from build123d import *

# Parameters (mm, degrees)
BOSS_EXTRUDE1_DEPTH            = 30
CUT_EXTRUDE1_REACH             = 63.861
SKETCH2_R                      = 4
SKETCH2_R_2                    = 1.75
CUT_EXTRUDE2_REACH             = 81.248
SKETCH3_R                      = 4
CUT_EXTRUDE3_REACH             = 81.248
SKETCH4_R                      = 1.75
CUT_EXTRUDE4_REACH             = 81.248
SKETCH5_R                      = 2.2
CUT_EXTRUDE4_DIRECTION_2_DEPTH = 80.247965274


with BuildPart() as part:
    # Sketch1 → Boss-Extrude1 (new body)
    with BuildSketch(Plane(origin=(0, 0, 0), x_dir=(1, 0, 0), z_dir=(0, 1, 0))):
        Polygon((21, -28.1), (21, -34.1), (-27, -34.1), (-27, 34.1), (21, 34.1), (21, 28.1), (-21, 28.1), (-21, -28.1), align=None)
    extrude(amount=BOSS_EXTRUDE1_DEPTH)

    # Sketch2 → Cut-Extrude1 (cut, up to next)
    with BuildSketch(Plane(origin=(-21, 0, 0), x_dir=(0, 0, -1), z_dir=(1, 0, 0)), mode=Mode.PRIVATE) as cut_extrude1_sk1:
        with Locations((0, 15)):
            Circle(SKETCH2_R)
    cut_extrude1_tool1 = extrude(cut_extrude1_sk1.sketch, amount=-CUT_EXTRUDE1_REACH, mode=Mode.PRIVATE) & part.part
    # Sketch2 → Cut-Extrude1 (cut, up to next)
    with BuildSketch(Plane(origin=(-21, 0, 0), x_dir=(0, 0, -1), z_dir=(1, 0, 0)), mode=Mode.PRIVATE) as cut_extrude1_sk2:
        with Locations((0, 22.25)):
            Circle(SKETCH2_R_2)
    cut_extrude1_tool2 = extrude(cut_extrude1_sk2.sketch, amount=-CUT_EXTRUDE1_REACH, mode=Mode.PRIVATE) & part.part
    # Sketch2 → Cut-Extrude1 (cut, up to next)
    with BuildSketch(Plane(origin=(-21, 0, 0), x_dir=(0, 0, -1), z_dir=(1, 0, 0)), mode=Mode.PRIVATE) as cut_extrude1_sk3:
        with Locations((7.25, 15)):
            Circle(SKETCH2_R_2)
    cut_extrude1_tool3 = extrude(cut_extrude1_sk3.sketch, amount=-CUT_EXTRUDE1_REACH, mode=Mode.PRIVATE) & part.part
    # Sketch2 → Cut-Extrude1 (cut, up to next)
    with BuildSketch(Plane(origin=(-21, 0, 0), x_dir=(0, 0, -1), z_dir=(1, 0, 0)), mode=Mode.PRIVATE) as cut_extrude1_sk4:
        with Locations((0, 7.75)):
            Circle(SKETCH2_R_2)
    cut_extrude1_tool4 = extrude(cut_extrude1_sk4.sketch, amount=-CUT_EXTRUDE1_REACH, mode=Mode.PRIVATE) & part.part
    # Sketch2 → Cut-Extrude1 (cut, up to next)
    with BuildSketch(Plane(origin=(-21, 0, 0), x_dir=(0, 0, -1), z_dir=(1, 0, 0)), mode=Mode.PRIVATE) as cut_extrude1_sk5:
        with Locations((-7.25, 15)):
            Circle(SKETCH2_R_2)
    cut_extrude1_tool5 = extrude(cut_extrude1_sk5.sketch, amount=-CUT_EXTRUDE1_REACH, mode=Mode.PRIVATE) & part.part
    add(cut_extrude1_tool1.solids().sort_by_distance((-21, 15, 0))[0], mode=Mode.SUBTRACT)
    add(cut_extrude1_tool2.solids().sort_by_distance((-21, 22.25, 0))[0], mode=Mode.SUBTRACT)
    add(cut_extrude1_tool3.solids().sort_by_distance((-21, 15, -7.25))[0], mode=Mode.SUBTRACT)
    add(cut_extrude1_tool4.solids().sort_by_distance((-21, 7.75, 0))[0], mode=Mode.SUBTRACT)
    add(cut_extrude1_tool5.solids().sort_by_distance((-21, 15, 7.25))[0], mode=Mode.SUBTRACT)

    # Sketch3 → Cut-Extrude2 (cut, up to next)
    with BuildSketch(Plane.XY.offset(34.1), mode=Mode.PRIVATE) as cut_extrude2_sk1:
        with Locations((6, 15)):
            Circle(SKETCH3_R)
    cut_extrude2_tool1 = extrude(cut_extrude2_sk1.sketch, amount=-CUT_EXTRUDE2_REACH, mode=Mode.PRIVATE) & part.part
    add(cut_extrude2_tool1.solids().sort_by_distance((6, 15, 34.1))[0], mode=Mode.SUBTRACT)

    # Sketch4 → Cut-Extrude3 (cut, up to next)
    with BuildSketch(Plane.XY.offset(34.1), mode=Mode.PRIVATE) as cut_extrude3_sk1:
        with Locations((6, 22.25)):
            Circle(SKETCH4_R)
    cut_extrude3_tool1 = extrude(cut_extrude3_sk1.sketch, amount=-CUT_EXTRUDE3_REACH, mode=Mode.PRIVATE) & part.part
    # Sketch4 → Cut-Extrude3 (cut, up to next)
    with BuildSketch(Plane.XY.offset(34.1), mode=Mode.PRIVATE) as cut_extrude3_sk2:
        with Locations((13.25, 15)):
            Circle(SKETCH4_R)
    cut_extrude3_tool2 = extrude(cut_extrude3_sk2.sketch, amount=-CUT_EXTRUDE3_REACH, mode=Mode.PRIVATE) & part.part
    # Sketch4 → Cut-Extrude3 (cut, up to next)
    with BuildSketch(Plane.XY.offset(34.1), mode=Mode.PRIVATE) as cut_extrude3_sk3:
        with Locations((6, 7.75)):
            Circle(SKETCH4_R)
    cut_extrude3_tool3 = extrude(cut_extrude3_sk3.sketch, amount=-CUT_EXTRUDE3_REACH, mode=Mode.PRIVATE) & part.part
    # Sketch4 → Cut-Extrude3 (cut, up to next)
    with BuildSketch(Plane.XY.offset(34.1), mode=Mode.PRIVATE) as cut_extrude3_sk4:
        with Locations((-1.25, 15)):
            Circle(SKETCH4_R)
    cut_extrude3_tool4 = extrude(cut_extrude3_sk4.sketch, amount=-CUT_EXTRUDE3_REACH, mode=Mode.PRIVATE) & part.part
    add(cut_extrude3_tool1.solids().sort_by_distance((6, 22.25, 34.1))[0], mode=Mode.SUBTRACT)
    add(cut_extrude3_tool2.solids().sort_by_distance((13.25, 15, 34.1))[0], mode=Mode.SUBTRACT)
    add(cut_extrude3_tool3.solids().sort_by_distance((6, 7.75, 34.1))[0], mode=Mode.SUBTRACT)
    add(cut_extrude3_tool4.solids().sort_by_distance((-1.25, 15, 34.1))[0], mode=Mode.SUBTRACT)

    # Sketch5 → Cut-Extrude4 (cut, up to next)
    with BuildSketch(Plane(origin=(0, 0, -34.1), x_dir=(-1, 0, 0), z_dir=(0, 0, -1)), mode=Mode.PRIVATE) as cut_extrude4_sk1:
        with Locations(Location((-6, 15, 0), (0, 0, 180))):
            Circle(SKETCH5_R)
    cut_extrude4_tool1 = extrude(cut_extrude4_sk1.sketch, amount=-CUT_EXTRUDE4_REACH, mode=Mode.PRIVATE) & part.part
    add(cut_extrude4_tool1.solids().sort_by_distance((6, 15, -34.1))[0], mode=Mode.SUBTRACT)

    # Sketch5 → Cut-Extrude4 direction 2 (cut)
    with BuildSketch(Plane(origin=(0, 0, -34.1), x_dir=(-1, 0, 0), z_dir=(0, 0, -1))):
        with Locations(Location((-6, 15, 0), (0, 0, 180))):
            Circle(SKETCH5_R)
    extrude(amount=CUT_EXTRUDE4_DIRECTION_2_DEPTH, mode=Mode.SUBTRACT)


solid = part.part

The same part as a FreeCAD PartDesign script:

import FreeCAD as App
import Part
import Sketcher

doc = App.newDocument("Part")
body = doc.addObject("PartDesign::Body", "Body")

sketch1 = body.newObject("Sketcher::SketchObject", "Sketch")
sketch1.AttachmentSupport = (doc.getObject("XZ_Plane"), [""])
sketch1.MapMode = "FlatFace"
sketch1.addGeometry([
    Part.LineSegment(App.Vector(21, 34.1, 0), App.Vector(21, 28.1, 0)),
    Part.LineSegment(App.Vector(21, 28.1, 0), App.Vector(-21, 28.1, 0)),
    Part.LineSegment(App.Vector(-21, 28.1, 0), App.Vector(-21, -28.1, 0)),
    Part.LineSegment(App.Vector(-21, -28.1, 0), App.Vector(21, -28.1, 0)),
    Part.LineSegment(App.Vector(21, -28.1, 0), App.Vector(21, -34.1, 0)),
    Part.LineSegment(App.Vector(21, -34.1, 0), App.Vector(-27, -34.1, 0)),
    Part.LineSegment(App.Vector(-27, -34.1, 0), App.Vector(-27, 34.1, 0)),
    Part.LineSegment(App.Vector(-27, 34.1, 0), App.Vector(21, 34.1, 0)),
], False)
sketch1.addConstraint([
    Sketcher.Constraint("Coincident", 0, 2, 1, 1),
    Sketcher.Constraint("Coincident", 1, 2, 2, 1),
    Sketcher.Constraint("Coincident", 2, 2, 3, 1),
    Sketcher.Constraint("Coincident", 3, 2, 4, 1),
    Sketcher.Constraint("Coincident", 4, 2, 5, 1),
    Sketcher.Constraint("Coincident", 5, 2, 6, 1),
    Sketcher.Constraint("Coincident", 6, 2, 7, 1),
    Sketcher.Constraint("Coincident", 7, 2, 0, 1),
    Sketcher.Constraint("Vertical", 0),
    Sketcher.Constraint("Horizontal", 1),
    Sketcher.Constraint("Vertical", 2),
    Sketcher.Constraint("Horizontal", 3),
    Sketcher.Constraint("Vertical", 4),
    Sketcher.Constraint("Horizontal", 5),
    Sketcher.Constraint("Vertical", 6),
    Sketcher.Constraint("Horizontal", 7),
    Sketcher.Constraint("Symmetric", 0, 2, 2, 2, -1, 1),
    Sketcher.Constraint("Symmetric", 4, 2, 7, 2, -1),
    Sketcher.Constraint("DistanceX", 1, 2, 1, 1, 42.0),
    Sketcher.Constraint("DistanceX", 5, 2, 5, 1, 48.0),
    Sketcher.Constraint("DistanceY", 0, 2, 0, 1, 6.0),
    Sketcher.Constraint("DistanceY", 2, 2, 2, 1, 56.2),
])
pad1 = body.newObject("PartDesign::Pad", "Pad")
pad1.Profile = sketch1
pad1.Length = 30
pad1.Reversed = True

sketch2 = body.newObject("Sketcher::SketchObject", "Sketch001")
sketch2.AttachmentSupport = (doc.getObject("YZ_Plane"), [""])
sketch2.MapMode = "FlatFace"
sketch2.AttachmentOffset = App.Placement(App.Vector(0, 0, -21), App.Rotation())
sketch2.addGeometry(Part.Circle(App.Vector(15, 0, 0), App.Vector(0, 0, 1), 4), False)
sketch2.addConstraint([
    Sketcher.Constraint("PointOnObject", 0, 3, -1),
    Sketcher.Constraint("Diameter", 0, 8.0),
    Sketcher.Constraint("DistanceX", -1, 1, 0, 3, 15.0),
])
pocket1 = body.newObject("PartDesign::Pocket", "Pocket")
pocket1.Profile = sketch2
pocket1.Type = "UpToFirst"

sketch3 = body.newObject("Sketcher::SketchObject", "Sketch002")
sketch3.AttachmentSupport = (doc.getObject("YZ_Plane"), [""])
sketch3.MapMode = "FlatFace"
sketch3.AttachmentOffset = App.Placement(App.Vector(0, 0, -21), App.Rotation())
sketch3.addGeometry(Part.Circle(App.Vector(22.25, 0, 0), App.Vector(0, 0, 1), 1.75), False)
sketch3.addConstraint([
    Sketcher.Constraint("PointOnObject", 0, 3, -1),
    Sketcher.Constraint("Diameter", 0, 3.5),
    Sketcher.Constraint("DistanceX", -1, 1, 0, 3, 22.25),
])
pocket2 = body.newObject("PartDesign::Pocket", "Pocket001")
pocket2.Profile = sketch3
pocket2.Type = "UpToFirst"

sketch4 = body.newObject("Sketcher::SketchObject", "Sketch003")
sketch4.AttachmentSupport = (doc.getObject("YZ_Plane"), [""])
sketch4.MapMode = "FlatFace"
sketch4.AttachmentOffset = App.Placement(App.Vector(0, 0, -21), App.Rotation())
sketch4.addGeometry(Part.Circle(App.Vector(15, -7.25, 0), App.Vector(0, 0, 1), 1.75), False)
sketch4.addConstraint([
    Sketcher.Constraint("Diameter", 0, 3.5),
    Sketcher.Constraint("DistanceX", -1, 1, 0, 3, 15.0),
    Sketcher.Constraint("DistanceY", 0, 3, -1, 1, 7.25),
])
pocket3 = body.newObject("PartDesign::Pocket", "Pocket002")
pocket3.Profile = sketch4
pocket3.Type = "UpToFirst"

sketch5 = body.newObject("Sketcher::SketchObject", "Sketch004")
sketch5.AttachmentSupport = (doc.getObject("YZ_Plane"), [""])
sketch5.MapMode = "FlatFace"
sketch5.AttachmentOffset = App.Placement(App.Vector(0, 0, -21), App.Rotation())
sketch5.addGeometry(Part.Circle(App.Vector(7.75, 0, 0), App.Vector(0, 0, 1), 1.75), False)
sketch5.addConstraint([
    Sketcher.Constraint("PointOnObject", 0, 3, -1),
    Sketcher.Constraint("Diameter", 0, 3.5),
    Sketcher.Constraint("DistanceX", -1, 1, 0, 3, 7.75),
])
pocket4 = body.newObject("PartDesign::Pocket", "Pocket003")
pocket4.Profile = sketch5
pocket4.Type = "UpToFirst"

sketch6 = body.newObject("Sketcher::SketchObject", "Sketch005")
sketch6.AttachmentSupport = (doc.getObject("YZ_Plane"), [""])
sketch6.MapMode = "FlatFace"
sketch6.AttachmentOffset = App.Placement(App.Vector(0, 0, -21), App.Rotation())
sketch6.addGeometry(Part.Circle(App.Vector(15, 7.25, 0), App.Vector(0, 0, 1), 1.75), False)
sketch6.addConstraint([
    Sketcher.Constraint("Diameter", 0, 3.5),
    Sketcher.Constraint("DistanceX", -1, 1, 0, 3, 15.0),
    Sketcher.Constraint("DistanceY", -1, 1, 0, 3, 7.25),
])
pocket5 = body.newObject("PartDesign::Pocket", "Pocket004")
pocket5.Profile = sketch6
pocket5.Type = "UpToFirst"

sketch7 = body.newObject("Sketcher::SketchObject", "Sketch006")
sketch7.AttachmentSupport = (doc.getObject("XY_Plane"), [""])
sketch7.MapMode = "FlatFace"
sketch7.AttachmentOffset = App.Placement(App.Vector(0, 0, 34.1), App.Rotation())
sketch7.addGeometry(Part.Circle(App.Vector(6, 15, 0), App.Vector(0, 0, 1), 4), False)
sketch7.addConstraint([
    Sketcher.Constraint("Diameter", 0, 8.0),
    Sketcher.Constraint("DistanceX", -1, 1, 0, 3, 6.0),
    Sketcher.Constraint("DistanceY", -1, 1, 0, 3, 15.0),
])
pocket6 = body.newObject("PartDesign::Pocket", "Pocket005")
pocket6.Profile = sketch7
pocket6.Type = "UpToFirst"

sketch8 = body.newObject("Sketcher::SketchObject", "Sketch007")
sketch8.AttachmentSupport = (doc.getObject("XY_Plane"), [""])
sketch8.MapMode = "FlatFace"
sketch8.AttachmentOffset = App.Placement(App.Vector(0, 0, 34.1), App.Rotation())
sketch8.addGeometry(Part.Circle(App.Vector(6, 22.25, 0), App.Vector(0, 0, 1), 1.75), False)
sketch8.addConstraint([
    Sketcher.Constraint("Diameter", 0, 3.5),
    Sketcher.Constraint("DistanceX", -1, 1, 0, 3, 6.0),
    Sketcher.Constraint("DistanceY", -1, 1, 0, 3, 22.25),
])
pocket7 = body.newObject("PartDesign::Pocket", "Pocket006")
pocket7.Profile = sketch8
pocket7.Type = "UpToFirst"

sketch9 = body.newObject("Sketcher::SketchObject", "Sketch008")
sketch9.AttachmentSupport = (doc.getObject("XY_Plane"), [""])
sketch9.MapMode = "FlatFace"
sketch9.AttachmentOffset = App.Placement(App.Vector(0, 0, 34.1), App.Rotation())
sketch9.addGeometry(Part.Circle(App.Vector(13.25, 15, 0), App.Vector(0, 0, 1), 1.75), False)
sketch9.addConstraint([
    Sketcher.Constraint("Diameter", 0, 3.5),
    Sketcher.Constraint("DistanceY", -1, 1, 0, 3, 15.0),
    Sketcher.Constraint("DistanceX", -1, 1, 0, 3, 13.25),
])
pocket8 = body.newObject("PartDesign::Pocket", "Pocket007")
pocket8.Profile = sketch9
pocket8.Type = "UpToFirst"

sketch10 = body.newObject("Sketcher::SketchObject", "Sketch009")
sketch10.AttachmentSupport = (doc.getObject("XY_Plane"), [""])
sketch10.MapMode = "FlatFace"
sketch10.AttachmentOffset = App.Placement(App.Vector(0, 0, 34.1), App.Rotation())
sketch10.addGeometry(Part.Circle(App.Vector(6, 7.75, 0), App.Vector(0, 0, 1), 1.75), False)
sketch10.addConstraint([
    Sketcher.Constraint("Diameter", 0, 3.5),
    Sketcher.Constraint("DistanceX", -1, 1, 0, 3, 6.0),
    Sketcher.Constraint("DistanceY", -1, 1, 0, 3, 7.75),
])
pocket9 = body.newObject("PartDesign::Pocket", "Pocket008")
pocket9.Profile = sketch10
pocket9.Type = "UpToFirst"

sketch11 = body.newObject("Sketcher::SketchObject", "Sketch010")
sketch11.AttachmentSupport = (doc.getObject("XY_Plane"), [""])
sketch11.MapMode = "FlatFace"
sketch11.AttachmentOffset = App.Placement(App.Vector(0, 0, 34.1), App.Rotation())
sketch11.addGeometry(Part.Circle(App.Vector(-1.25, 15, 0), App.Vector(0, 0, 1), 1.75), False)
sketch11.addConstraint([
    Sketcher.Constraint("Diameter", 0, 3.5),
    Sketcher.Constraint("DistanceY", -1, 1, 0, 3, 15.0),
    Sketcher.Constraint("DistanceX", 0, 3, -1, 1, 1.25),
])
pocket10 = body.newObject("PartDesign::Pocket", "Pocket009")
pocket10.Profile = sketch11
pocket10.Type = "UpToFirst"

sketch12 = body.newObject("Sketcher::SketchObject", "Sketch011")
sketch12.AttachmentSupport = (doc.getObject("XY_Plane"), [""])
sketch12.MapMode = "FlatFace"
sketch12.AttachmentOffset = App.Placement(App.Vector(0, 0, -34.1), App.Rotation())
sketch12.addGeometry(Part.Circle(App.Vector(6, 15, 0), App.Vector(0, 0, 1), 2.2), False)
sketch12.addConstraint([
    Sketcher.Constraint("Diameter", 0, 4.4),
    Sketcher.Constraint("DistanceX", -1, 1, 0, 3, 6.0),
    Sketcher.Constraint("DistanceY", -1, 1, 0, 3, 15.0),
])
pocket11 = body.newObject("PartDesign::Pocket", "Pocket010")
pocket11.Profile = sketch12
pocket11.Type = "UpToFirst"
pocket11.Reversed = True

sketch13 = body.newObject("Sketcher::SketchObject", "Sketch012")
sketch13.AttachmentSupport = (doc.getObject("XY_Plane"), [""])
sketch13.MapMode = "FlatFace"
sketch13.AttachmentOffset = App.Placement(App.Vector(0, 0, -34.1), App.Rotation())
sketch13.addGeometry(Part.Circle(App.Vector(6, 15, 0), App.Vector(0, 0, 1), 2.2), False)
sketch13.addConstraint([
    Sketcher.Constraint("Diameter", 0, 4.4),
    Sketcher.Constraint("DistanceX", -1, 1, 0, 3, 6.0),
    Sketcher.Constraint("DistanceY", -1, 1, 0, 3, 15.0),
])
pocket12 = body.newObject("PartDesign::Pocket", "Pocket011")
pocket12.Profile = sketch13
pocket12.Length = 80.247965

doc.recompute()
